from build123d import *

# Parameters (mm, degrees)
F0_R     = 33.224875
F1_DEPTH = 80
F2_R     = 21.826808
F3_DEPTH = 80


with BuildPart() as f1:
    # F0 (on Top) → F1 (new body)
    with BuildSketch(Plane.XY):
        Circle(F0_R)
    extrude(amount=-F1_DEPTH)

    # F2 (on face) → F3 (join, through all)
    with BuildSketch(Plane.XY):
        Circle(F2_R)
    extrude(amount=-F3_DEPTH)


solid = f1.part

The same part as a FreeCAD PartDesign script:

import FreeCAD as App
import Part
import Sketcher

doc = App.newDocument("Part")
body = doc.addObject("PartDesign::Body", "Body")

# Sketch on XY plane
sketch1 = doc.addObject("Sketcher::SketchObject", "Sketch")
body.addObject(sketch1)
sketch1.AttachmentSupport = (doc.XY_Plane, [""])
sketch1.MapMode = "FlatFace"
sketch1.addGeometry(Part.Circle(App.Vector(0, 0, 0), App.Vector(0, 0, 1), 33), False)
sketch1.addConstraint([
    Sketcher.Constraint("Coincident", 0, 3, -1, 1),
    Sketcher.Constraint("Diameter", 0, 66.44975),
])
pad1 = doc.addObject("PartDesign::Pad", "Pad")
body.addObject(pad1)
pad1.Profile = sketch1
pad1.Length = 80
pad1.Reversed = True

# Sketch on XY plane
sketch2 = doc.addObject("Sketcher::SketchObject", "Sketch001")
body.addObject(sketch2)
sketch2.AttachmentSupport = (doc.XY_Plane, [""])
sketch2.MapMode = "FlatFace"
sketch2.addGeometry(Part.Circle(App.Vector(0, 0, 0), App.Vector(0, 0, 1), 22), False)
sketch2.addConstraint([
    Sketcher.Constraint("Coincident", 0, 3, -1, 1),
    Sketcher.Constraint("Diameter", 0, 43.653616),
])
pad2 = doc.addObject("PartDesign::Pad", "Pad001")
body.addObject(pad2)
pad2.Profile = sketch2
pad2.Type = "UpToLast"
pad2.Reversed = True

doc.recompute()
